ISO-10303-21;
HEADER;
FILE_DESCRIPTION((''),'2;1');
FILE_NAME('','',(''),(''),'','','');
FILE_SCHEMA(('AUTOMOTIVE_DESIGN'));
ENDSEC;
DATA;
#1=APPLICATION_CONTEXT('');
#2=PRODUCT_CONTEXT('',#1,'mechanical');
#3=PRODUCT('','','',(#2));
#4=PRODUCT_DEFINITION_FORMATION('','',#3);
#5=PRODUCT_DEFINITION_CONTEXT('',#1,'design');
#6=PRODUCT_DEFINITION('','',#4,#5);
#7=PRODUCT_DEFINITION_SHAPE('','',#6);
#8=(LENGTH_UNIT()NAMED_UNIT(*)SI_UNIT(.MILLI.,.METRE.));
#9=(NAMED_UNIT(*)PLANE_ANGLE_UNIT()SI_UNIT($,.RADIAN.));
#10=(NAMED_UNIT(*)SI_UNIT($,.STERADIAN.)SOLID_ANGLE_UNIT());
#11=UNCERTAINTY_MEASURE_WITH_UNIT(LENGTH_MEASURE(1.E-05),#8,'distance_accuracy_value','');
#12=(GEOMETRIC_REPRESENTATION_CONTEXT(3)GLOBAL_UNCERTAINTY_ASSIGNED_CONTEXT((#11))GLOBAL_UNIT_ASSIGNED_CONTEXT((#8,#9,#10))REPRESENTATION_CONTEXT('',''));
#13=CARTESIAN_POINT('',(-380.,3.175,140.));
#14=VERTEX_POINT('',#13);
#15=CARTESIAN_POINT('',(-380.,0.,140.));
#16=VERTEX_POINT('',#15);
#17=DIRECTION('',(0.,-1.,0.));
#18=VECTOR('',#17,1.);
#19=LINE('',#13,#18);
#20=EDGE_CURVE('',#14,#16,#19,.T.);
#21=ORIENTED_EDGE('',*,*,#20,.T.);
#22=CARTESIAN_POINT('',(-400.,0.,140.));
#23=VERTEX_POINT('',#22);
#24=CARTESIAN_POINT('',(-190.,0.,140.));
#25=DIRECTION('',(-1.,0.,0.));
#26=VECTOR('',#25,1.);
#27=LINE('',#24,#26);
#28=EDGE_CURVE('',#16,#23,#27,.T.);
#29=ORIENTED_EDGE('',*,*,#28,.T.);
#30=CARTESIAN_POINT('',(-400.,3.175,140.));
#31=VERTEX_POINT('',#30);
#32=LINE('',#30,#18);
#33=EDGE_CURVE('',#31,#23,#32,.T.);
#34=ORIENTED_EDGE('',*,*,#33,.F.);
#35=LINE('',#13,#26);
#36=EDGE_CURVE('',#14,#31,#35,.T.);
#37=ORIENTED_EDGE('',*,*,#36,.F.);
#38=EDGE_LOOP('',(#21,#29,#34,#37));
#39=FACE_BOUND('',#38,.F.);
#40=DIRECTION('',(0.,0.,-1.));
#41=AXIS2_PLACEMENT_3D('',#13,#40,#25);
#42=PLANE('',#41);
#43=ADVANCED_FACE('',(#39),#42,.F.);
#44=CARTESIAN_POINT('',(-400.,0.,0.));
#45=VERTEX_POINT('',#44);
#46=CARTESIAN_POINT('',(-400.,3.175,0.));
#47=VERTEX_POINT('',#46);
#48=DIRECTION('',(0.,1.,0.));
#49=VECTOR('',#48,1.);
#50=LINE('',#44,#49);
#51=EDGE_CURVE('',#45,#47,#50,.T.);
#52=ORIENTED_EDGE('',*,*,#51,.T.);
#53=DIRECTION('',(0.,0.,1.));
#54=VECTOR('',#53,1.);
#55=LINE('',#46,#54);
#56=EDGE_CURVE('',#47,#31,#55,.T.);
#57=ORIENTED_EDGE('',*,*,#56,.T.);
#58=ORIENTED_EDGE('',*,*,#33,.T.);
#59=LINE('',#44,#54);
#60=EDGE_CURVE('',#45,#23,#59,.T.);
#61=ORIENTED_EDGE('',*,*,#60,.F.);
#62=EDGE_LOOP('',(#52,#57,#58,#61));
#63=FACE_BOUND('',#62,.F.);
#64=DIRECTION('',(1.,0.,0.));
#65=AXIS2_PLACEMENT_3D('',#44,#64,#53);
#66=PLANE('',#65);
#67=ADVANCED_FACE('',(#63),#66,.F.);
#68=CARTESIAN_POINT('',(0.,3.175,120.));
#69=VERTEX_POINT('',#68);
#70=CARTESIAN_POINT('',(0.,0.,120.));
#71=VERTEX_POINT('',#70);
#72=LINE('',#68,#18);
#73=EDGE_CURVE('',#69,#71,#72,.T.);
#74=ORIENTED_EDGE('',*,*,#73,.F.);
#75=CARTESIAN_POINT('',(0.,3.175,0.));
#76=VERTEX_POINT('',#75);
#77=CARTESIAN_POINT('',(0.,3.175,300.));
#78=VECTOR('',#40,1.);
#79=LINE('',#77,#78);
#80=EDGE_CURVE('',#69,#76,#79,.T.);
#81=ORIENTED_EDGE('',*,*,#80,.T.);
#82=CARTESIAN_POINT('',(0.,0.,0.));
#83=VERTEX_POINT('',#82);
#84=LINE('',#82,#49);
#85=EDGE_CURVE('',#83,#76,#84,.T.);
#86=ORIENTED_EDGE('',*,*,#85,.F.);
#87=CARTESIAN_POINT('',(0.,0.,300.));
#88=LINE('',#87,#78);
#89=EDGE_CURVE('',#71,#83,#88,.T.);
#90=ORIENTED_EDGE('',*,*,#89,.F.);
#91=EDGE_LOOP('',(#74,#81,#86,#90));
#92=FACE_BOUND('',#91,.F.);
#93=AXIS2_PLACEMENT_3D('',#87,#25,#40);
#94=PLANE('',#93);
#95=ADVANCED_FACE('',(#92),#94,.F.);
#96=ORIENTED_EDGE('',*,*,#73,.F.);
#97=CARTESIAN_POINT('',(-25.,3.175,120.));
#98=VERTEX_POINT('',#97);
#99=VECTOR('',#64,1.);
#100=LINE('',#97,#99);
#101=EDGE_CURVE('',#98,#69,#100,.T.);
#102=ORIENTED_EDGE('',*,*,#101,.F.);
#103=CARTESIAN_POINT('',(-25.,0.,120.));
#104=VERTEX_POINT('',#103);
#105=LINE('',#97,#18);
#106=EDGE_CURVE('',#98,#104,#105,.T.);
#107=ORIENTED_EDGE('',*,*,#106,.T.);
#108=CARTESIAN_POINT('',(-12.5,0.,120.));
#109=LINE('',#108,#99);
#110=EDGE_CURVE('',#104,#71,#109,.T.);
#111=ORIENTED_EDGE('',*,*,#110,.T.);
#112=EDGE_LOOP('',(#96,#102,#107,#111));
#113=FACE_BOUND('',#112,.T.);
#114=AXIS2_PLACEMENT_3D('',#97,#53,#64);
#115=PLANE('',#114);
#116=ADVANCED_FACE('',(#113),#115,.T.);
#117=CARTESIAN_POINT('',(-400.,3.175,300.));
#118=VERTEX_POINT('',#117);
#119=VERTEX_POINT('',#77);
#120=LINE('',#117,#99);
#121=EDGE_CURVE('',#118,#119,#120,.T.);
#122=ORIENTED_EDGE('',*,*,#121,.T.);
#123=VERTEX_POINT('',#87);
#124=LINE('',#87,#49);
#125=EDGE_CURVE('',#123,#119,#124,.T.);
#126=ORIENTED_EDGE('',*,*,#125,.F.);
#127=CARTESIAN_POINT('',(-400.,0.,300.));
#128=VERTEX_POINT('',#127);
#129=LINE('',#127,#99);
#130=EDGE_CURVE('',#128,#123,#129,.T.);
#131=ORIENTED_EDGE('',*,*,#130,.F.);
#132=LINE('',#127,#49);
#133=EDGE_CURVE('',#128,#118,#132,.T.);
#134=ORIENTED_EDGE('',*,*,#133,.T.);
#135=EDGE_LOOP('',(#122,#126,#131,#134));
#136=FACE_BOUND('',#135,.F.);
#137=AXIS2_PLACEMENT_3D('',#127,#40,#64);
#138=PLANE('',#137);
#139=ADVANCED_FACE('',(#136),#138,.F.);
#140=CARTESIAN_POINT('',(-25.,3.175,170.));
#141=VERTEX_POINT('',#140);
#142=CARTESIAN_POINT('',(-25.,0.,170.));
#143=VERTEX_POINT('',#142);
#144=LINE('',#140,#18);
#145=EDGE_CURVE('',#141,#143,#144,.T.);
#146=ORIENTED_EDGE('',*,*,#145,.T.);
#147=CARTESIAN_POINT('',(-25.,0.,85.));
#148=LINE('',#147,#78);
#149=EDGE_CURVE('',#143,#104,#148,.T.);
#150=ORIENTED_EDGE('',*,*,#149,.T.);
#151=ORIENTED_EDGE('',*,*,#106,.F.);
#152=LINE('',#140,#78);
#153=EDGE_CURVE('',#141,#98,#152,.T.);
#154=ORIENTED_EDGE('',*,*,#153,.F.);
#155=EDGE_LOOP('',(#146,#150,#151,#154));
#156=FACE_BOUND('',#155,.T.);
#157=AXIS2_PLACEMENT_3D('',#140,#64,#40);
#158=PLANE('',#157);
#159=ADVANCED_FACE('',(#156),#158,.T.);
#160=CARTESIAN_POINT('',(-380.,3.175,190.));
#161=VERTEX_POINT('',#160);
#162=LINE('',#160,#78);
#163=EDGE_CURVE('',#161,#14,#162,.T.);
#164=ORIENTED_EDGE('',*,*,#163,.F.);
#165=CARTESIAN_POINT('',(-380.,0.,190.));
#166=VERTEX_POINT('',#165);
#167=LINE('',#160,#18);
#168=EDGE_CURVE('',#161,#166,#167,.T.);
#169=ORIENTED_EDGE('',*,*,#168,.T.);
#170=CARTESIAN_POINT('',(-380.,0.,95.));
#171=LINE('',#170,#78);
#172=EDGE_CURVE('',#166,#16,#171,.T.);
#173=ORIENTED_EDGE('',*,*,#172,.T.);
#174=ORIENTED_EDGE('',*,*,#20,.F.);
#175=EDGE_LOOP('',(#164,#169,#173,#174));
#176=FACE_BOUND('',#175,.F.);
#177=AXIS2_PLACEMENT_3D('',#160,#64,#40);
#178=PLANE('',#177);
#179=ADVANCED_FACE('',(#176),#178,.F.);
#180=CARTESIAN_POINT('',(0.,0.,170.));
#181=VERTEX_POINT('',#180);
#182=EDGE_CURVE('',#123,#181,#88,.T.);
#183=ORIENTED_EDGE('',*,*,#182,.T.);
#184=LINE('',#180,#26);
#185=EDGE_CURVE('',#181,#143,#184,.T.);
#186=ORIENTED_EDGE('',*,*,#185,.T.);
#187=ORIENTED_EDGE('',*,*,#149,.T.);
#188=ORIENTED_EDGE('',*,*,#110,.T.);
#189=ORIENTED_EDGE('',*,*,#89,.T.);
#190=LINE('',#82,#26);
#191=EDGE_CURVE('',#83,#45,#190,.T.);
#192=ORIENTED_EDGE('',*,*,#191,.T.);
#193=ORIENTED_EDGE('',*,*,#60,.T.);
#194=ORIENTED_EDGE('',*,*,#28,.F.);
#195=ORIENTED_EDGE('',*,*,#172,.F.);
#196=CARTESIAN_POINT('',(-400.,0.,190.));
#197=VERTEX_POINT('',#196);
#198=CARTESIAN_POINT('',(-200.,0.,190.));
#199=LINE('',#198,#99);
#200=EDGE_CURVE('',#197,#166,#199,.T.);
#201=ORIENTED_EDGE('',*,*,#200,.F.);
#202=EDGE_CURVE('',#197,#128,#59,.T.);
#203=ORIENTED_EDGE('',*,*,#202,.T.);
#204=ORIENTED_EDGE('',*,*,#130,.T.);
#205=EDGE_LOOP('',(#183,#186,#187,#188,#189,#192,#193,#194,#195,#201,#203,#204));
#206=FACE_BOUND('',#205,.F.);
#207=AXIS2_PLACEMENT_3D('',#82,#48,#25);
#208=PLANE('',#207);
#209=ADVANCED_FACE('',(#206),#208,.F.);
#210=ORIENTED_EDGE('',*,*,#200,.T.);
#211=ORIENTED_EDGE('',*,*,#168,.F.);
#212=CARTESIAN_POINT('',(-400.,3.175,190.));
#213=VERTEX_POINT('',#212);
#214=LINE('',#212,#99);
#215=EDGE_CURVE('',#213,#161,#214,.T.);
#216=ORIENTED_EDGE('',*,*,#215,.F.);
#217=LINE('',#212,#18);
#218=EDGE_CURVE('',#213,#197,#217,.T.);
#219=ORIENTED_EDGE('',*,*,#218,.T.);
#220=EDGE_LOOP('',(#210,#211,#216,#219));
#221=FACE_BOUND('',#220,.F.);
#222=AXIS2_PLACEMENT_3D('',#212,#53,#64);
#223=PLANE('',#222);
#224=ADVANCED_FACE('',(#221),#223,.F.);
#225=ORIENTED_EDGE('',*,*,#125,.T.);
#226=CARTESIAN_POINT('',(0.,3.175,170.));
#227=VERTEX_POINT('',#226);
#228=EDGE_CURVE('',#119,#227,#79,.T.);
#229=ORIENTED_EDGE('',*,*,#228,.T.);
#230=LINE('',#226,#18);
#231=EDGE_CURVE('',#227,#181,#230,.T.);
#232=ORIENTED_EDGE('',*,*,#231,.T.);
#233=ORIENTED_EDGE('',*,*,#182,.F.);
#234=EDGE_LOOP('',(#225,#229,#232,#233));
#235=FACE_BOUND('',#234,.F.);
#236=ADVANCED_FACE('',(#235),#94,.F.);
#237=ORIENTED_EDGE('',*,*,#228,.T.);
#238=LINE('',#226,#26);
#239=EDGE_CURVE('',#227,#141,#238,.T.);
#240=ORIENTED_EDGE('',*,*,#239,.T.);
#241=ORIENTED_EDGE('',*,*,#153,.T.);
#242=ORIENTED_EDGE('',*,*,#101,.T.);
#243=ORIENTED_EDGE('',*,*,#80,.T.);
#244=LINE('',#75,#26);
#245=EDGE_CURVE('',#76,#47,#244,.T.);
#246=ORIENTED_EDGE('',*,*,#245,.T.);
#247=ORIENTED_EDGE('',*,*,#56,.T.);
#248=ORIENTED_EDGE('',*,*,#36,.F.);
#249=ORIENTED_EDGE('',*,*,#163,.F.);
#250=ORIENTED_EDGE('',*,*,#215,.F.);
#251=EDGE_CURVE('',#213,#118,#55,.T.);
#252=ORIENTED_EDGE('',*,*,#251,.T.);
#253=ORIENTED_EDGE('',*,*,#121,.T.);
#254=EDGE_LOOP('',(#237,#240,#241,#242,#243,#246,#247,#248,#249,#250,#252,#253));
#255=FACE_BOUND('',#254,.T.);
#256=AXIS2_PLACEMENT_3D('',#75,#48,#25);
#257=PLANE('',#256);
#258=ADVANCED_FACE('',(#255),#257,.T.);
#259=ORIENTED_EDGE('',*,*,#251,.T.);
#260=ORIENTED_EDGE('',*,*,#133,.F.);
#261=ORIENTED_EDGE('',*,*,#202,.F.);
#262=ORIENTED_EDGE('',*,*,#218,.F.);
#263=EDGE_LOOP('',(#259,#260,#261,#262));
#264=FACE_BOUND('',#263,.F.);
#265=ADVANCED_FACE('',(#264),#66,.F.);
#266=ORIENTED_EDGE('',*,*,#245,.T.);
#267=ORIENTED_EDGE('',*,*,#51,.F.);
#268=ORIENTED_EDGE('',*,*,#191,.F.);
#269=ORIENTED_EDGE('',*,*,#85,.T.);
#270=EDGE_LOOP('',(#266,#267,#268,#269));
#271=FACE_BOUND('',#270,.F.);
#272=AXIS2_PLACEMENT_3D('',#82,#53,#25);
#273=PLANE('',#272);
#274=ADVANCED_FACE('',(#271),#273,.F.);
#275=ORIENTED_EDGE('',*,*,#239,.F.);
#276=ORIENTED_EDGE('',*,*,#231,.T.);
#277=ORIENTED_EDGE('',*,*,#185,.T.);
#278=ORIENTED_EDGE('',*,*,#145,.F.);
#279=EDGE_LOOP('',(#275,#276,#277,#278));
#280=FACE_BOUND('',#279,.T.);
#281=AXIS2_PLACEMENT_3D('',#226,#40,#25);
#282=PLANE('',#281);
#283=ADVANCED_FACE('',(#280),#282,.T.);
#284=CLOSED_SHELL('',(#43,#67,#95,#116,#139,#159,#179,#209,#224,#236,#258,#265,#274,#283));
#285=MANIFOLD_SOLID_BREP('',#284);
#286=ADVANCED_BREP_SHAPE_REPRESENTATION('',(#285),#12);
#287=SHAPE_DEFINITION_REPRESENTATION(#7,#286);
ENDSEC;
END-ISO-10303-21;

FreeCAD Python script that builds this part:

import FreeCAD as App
import Part
import Sketcher

V = App.Vector
Q = App.Units.Quantity

doc = App.newDocument("Part")
body = doc.addObject("PartDesign::Body", "Body")

sketch1 = body.newObject("Sketcher::SketchObject", "Sketch")
sketch1.AttachmentSupport = (doc.getObject("XZ_Plane"), [""])
sketch1.MapMode = "FlatFace"
sketch1.addGeometry([
    Part.LineSegment(V(0, 300, 0), V(0, 0, 0)),
    Part.LineSegment(V(0, 0, 0), V(-400, 0, 0)),
    Part.LineSegment(V(-400, 0, 0), V(-400, 300, 0)),
    Part.LineSegment(V(-400, 300, 0), V(0, 300, 0)),
], False)
sketch1.addConstraint([
    Sketcher.Constraint("Coincident", 0, 2, 1, 1),
    Sketcher.Constraint("Coincident", 1, 2, 2, 1),
    Sketcher.Constraint("Coincident", 2, 2, 3, 1),
    Sketcher.Constraint("Coincident", 3, 2, 0, 1),
    Sketcher.Constraint("Vertical", 0),
    Sketcher.Constraint("Horizontal", 1),
    Sketcher.Constraint("Vertical", 2),
    Sketcher.Constraint("Horizontal", 3),
    Sketcher.Constraint("Coincident", 0, 2, -1, 1),
    Sketcher.Constraint("DistanceX", 1, 2, 1, 1, Q("400 mm")),
    Sketcher.Constraint("DistanceY", 0, 2, 0, 1, Q("300 mm")),
])
pad1 = body.newObject("PartDesign::Pad", "Pad")
pad1.Profile = sketch1
pad1.Length = 3.175
pad1.Reversed = True

sketch2 = body.newObject("Sketcher::SketchObject", "Sketch001")
sketch2.AttachmentSupport = (doc.getObject("XZ_Plane"), [""])
sketch2.MapMode = "FlatFace"
sketch2.AttachmentOffset = App.Placement(V(0, 0, -3.175), App.Rotation())
sketch2.addGeometry([
    Part.LineSegment(V(-25, 170, 0), V(0, 170, 0)),
    Part.LineSegment(V(0, 170, 0), V(0, 120, 0)),
    Part.LineSegment(V(0, 120, 0), V(-25, 120, 0)),
    Part.LineSegment(V(-25, 120, 0), V(-25, 170, 0)),
    Part.LineSegment(V(-400, 140, 0), V(-400, 190, 0)),
    Part.LineSegment(V(-400, 190, 0), V(-380, 190, 0)),
    Part.LineSegment(V(-380, 190, 0), V(-380, 140, 0)),
    Part.LineSegment(V(-380, 140, 0), V(-400, 140, 0)),
], False)
sketch2.addConstraint([
    Sketcher.Constraint("Coincident", 0, 2, 1, 1),
    Sketcher.Constraint("Coincident", 1, 2, 2, 1),
    Sketcher.Constraint("Coincident", 2, 2, 3, 1),
    Sketcher.Constraint("Coincident", 3, 2, 0, 1),
    Sketcher.Constraint("Coincident", 4, 2, 5, 1),
    Sketcher.Constraint("Coincident", 5, 2, 6, 1),
    Sketcher.Constraint("Coincident", 6, 2, 7, 1),
    Sketcher.Constraint("Coincident", 7, 2, 4, 1),
    Sketcher.Constraint("Horizontal", 0),
    Sketcher.Constraint("Vertical", 1),
    Sketcher.Constraint("Horizontal", 2),
    Sketcher.Constraint("Vertical", 3),
    Sketcher.Constraint("Vertical", 4),
    Sketcher.Constraint("Horizontal", 5),
    Sketcher.Constraint("Vertical", 6),
    Sketcher.Constraint("Horizontal", 7),
    Sketcher.Constraint("PointOnObject", 0, 2, -2),
    Sketcher.Constraint("Equal", 3, 4),
    Sketcher.Constraint("DistanceX", 0, 1, 0, 2, Q("25 mm")),
    Sketcher.Constraint("DistanceX", 5, 1, 5, 2, Q("20 mm")),
    Sketcher.Constraint("DistanceY", 3, 2, 4, 2, Q("20 mm")),
    Sketcher.Constraint("DistanceY", 1, 2, 1, 1, Q("50 mm")),
    Sketcher.Constraint("DistanceY", -1, 1, 0, 2, Q("170 mm")),
    Sketcher.Constraint("DistanceX", 4, 2, -1, 1, Q("400 mm")),
])
pocket1 = body.newObject("PartDesign::Pocket", "Pocket")
pocket1.Profile = sketch2
pocket1.Type = "ThroughAll"
pocket1.Reversed = True

doc.recompute()
